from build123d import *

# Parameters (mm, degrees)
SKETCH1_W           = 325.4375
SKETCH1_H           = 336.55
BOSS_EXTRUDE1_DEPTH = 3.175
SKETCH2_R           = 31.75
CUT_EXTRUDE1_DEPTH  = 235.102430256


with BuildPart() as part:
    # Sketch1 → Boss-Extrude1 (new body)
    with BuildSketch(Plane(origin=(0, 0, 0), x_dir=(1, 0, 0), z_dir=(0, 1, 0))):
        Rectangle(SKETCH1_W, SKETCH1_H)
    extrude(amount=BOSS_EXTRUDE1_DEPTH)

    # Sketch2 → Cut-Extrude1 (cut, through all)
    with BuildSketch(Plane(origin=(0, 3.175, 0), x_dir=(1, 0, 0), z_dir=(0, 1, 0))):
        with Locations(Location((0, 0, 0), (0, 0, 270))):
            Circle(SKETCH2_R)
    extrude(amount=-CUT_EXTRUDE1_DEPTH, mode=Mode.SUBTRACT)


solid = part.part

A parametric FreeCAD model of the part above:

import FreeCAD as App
import Part
import Sketcher
from FreeCAD import Vector
Q = App.Units.Quantity


def add_polygon(sketch, points):
    """Adds a closed chain of lines whose ends are joined by coincident constraints."""
    first, n = sketch.GeometryCount, len(points)
    for a, b in zip(points, points[1:] + points[:1]):
        sketch.addGeometry(Part.LineSegment(App.Vector(*a, 0), App.Vector(*b, 0)), False)
    for i in range(n):
        sketch.addConstraint(Sketcher.Constraint("Coincident", first + i, 2, first + (i + 1) % n, 1))

doc = App.newDocument("Part")
body = doc.addObject("PartDesign::Body", "Body")

sketch1 = body.newObject("Sketcher::SketchObject", "Sketch")
sketch1.AttachmentSupport = (doc.getObject("XZ_Plane"), [""])
sketch1.MapMode = "FlatFace"
add_polygon(sketch1, [(-163, -168), (-163, 168), (163, 168), (163, -168)])
sketch1.addConstraint(Sketcher.Constraint("Vertical", 0))
sketch1.addConstraint(Sketcher.Constraint("Horizontal", 1))
sketch1.addConstraint(Sketcher.Constraint("Vertical", 2))
sketch1.addConstraint(Sketcher.Constraint("Horizontal", 3))
sketch1.addConstraint(Sketcher.Constraint("Symmetric", 0, 2, 2, 2, -1, 1))
sketch1.addConstraint(Sketcher.Constraint("DistanceY", 0, 1, 0, 2, Q("13.25 in")))
sketch1.addConstraint(Sketcher.Constraint("DistanceX", 1, 1, 1, 2, Q("12.8125 in")))
pad1 = body.newObject("PartDesign::Pad", "Pad")
pad1.Profile = sketch1
pad1.Length = Q("0.125 in")
pad1.Reversed = True

sketch2 = body.newObject("Sketcher::SketchObject", "Sketch001")
sketch2.AttachmentSupport = (doc.getObject("XZ_Plane"), [""])
sketch2.MapMode = "FlatFace"
sketch2.AttachmentOffset = App.Placement(Vector(0, 0, -0.125 * 25.4), App.Rotation())
sketch2.addGeometry(Part.Circle(Vector(0, 0, 0), Vector(0, 0, 1), 32), False)
sketch2.addConstraint(Sketcher.Constraint("Coincident", 0, 3, -1, 1))
sketch2.addConstraint(Sketcher.Constraint("Diameter", 0, Q("2.5 in")))
pocket1 = body.newObject("PartDesign::Pocket", "Pocket")
pocket1.Profile = sketch2
pocket1.Type = "ThroughAll"
pocket1.Reversed = True

doc.recompute()
